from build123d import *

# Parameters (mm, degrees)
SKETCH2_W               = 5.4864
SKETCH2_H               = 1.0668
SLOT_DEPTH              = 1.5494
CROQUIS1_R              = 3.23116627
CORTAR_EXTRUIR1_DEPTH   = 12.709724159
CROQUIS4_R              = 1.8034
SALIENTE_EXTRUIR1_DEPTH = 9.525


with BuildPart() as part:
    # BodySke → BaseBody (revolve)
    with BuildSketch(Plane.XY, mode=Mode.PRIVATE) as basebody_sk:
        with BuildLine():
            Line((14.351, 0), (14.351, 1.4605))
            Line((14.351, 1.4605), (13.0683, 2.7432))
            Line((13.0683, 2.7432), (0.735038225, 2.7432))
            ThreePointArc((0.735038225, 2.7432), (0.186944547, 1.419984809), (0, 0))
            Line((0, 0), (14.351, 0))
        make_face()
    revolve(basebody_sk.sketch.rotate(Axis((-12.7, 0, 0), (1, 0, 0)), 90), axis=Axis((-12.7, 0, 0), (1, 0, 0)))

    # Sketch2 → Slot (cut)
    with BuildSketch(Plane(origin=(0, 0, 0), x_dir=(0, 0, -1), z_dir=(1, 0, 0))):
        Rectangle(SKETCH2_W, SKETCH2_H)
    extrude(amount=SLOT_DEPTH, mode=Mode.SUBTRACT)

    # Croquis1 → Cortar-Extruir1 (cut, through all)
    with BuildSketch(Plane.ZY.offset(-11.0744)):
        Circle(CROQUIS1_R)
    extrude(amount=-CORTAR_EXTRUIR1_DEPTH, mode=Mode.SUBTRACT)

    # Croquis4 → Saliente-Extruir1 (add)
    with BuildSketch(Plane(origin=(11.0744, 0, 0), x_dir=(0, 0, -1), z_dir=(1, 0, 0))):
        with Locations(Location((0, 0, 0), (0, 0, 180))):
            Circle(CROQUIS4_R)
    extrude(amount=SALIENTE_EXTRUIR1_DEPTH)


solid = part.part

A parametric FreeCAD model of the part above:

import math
import FreeCAD as App
import Part
import Sketcher

V = App.Vector
Q = App.Units.Quantity

doc = App.newDocument("Part")
body = doc.addObject("PartDesign::Body", "Body")

sketch1 = body.newObject("Sketcher::SketchObject", "Sketch")
sketch1.AttachmentSupport = (doc.getObject("XY_Plane"), [""])
sketch1.MapMode = "FlatFace"
sketch1.addGeometry([
    Part.LineSegment(V(14.4, 0, 0), V(14.4, 1.5, 0)),
    Part.LineSegment(V(14.4, 1.5, 0), V(13.1, 2.7, 0)),
    Part.LineSegment(V(13.1, 2.7, 0), V(0.7, 2.7, 0)),
    Part.ArcOfCircle(Part.Circle(V(5.5, 0, 0), V(0, 0, 1), 5.5), math.radians(150), math.radians(180)),
    Part.LineSegment(V(0, 0, 0), V(14.4, 0, 0)),
], False)
sketch1.addConstraint([
    Sketcher.Constraint("Coincident", 0, 2, 1, 1),
    Sketcher.Constraint("Coincident", 1, 2, 2, 1),
    Sketcher.Constraint("Coincident", 2, 2, 3, 1),
    Sketcher.Constraint("Coincident", 3, 2, 4, 1),
    Sketcher.Constraint("Coincident", 4, 2, 0, 1),
    Sketcher.Constraint("Vertical", 0),
    Sketcher.Constraint("Horizontal", 2),
    Sketcher.Constraint("Horizontal", 4),
    Sketcher.Constraint("Coincident", 3, 2, -1, 1),
    Sketcher.Constraint("PointOnObject", 3, 3, -1),
    Sketcher.Constraint("Angle", 1, Q("135 deg")),
    Sketcher.Constraint("Radius", 3, Q("0.216 in")),
    Sketcher.Constraint("DistanceX", 4, 1, 4, 2, Q("0.565 in")),
    Sketcher.Constraint("DistanceY", 0, 1, 0, 2, Q("0.0575 in")),
    Sketcher.Constraint("DistanceY", -1, 1, 1, 2, Q("0.108 in")),
])
revolution = body.newObject("PartDesign::Revolution", "Revolution")
revolution.Profile = sketch1
revolution.ReferenceAxis = (sketch1, ["H_Axis"])
revolution.Angle = 360

sketch2 = body.newObject("Sketcher::SketchObject", "Sketch001")
sketch2.AttachmentSupport = (doc.getObject("YZ_Plane"), [""])
sketch2.MapMode = "FlatFace"
sketch2.addGeometry([
    Part.LineSegment(V(0.5, 2.7, 0), V(-0.5, 2.7, 0)),
    Part.LineSegment(V(-0.5, 2.7, 0), V(-0.5, -2.7, 0)),
    Part.LineSegment(V(-0.5, -2.7, 0), V(0.5, -2.7, 0)),
    Part.LineSegment(V(0.5, -2.7, 0), V(0.5, 2.7, 0)),
], False)
sketch2.addConstraint([
    Sketcher.Constraint("Coincident", 0, 2, 1, 1),
    Sketcher.Constraint("Coincident", 1, 2, 2, 1),
    Sketcher.Constraint("Coincident", 2, 2, 3, 1),
    Sketcher.Constraint("Coincident", 3, 2, 0, 1),
    Sketcher.Constraint("Horizontal", 0),
    Sketcher.Constraint("Vertical", 1),
    Sketcher.Constraint("Horizontal", 2),
    Sketcher.Constraint("Vertical", 3),
    Sketcher.Constraint("Symmetric", 0, 2, 2, 2, -1, 1),
    Sketcher.Constraint("DistanceX", 0, 2, 0, 1, Q("0.042 in")),
    Sketcher.Constraint("DistanceY", 1, 2, 1, 1, Q("0.216 in")),
])
pocket1 = body.newObject("PartDesign::Pocket", "Pocket")
pocket1.Profile = sketch2
pocket1.Length = Q("0.061 in")
pocket1.Reversed = True

sketch3 = body.newObject("Sketcher::SketchObject", "Sketch002")
sketch3.AttachmentSupport = (doc.getObject("YZ_Plane"), [""])
sketch3.MapMode = "FlatFace"
sketch3.AttachmentOffset = App.Placement(V(0, 0, 0.436 * 25.4), App.Rotation())
sketch3.addGeometry(Part.Circle(V(0, 0, 0), V(0, 0, 1), 3.2), False)
sketch3.addConstraint([
    Sketcher.Constraint("Coincident", 0, 3, -1, 1),
    Sketcher.Constraint("Diameter", 0, Q("6.462333 mm")),
])
pocket2 = body.newObject("PartDesign::Pocket", "Pocket001")
pocket2.Profile = sketch3
pocket2.Type = "ThroughAll"
pocket2.Reversed = True

sketch4 = body.newObject("Sketcher::SketchObject", "Sketch003")
sketch4.AttachmentSupport = (doc.getObject("YZ_Plane"), [""])
sketch4.MapMode = "FlatFace"
sketch4.AttachmentOffset = App.Placement(V(0, 0, 0.436 * 25.4), App.Rotation())
sketch4.addGeometry(Part.Circle(V(0, 0, 0), V(0, 0, 1), 1.8), False)
sketch4.addConstraint([
    Sketcher.Constraint("Coincident", 0, 3, -1, 1),
    Sketcher.Constraint("Diameter", 0, Q("0.142 in")),
])
pad1 = body.newObject("PartDesign::Pad", "Pad")
pad1.Profile = sketch4
pad1.Length = Q("0.375 in")

doc.recompute()
